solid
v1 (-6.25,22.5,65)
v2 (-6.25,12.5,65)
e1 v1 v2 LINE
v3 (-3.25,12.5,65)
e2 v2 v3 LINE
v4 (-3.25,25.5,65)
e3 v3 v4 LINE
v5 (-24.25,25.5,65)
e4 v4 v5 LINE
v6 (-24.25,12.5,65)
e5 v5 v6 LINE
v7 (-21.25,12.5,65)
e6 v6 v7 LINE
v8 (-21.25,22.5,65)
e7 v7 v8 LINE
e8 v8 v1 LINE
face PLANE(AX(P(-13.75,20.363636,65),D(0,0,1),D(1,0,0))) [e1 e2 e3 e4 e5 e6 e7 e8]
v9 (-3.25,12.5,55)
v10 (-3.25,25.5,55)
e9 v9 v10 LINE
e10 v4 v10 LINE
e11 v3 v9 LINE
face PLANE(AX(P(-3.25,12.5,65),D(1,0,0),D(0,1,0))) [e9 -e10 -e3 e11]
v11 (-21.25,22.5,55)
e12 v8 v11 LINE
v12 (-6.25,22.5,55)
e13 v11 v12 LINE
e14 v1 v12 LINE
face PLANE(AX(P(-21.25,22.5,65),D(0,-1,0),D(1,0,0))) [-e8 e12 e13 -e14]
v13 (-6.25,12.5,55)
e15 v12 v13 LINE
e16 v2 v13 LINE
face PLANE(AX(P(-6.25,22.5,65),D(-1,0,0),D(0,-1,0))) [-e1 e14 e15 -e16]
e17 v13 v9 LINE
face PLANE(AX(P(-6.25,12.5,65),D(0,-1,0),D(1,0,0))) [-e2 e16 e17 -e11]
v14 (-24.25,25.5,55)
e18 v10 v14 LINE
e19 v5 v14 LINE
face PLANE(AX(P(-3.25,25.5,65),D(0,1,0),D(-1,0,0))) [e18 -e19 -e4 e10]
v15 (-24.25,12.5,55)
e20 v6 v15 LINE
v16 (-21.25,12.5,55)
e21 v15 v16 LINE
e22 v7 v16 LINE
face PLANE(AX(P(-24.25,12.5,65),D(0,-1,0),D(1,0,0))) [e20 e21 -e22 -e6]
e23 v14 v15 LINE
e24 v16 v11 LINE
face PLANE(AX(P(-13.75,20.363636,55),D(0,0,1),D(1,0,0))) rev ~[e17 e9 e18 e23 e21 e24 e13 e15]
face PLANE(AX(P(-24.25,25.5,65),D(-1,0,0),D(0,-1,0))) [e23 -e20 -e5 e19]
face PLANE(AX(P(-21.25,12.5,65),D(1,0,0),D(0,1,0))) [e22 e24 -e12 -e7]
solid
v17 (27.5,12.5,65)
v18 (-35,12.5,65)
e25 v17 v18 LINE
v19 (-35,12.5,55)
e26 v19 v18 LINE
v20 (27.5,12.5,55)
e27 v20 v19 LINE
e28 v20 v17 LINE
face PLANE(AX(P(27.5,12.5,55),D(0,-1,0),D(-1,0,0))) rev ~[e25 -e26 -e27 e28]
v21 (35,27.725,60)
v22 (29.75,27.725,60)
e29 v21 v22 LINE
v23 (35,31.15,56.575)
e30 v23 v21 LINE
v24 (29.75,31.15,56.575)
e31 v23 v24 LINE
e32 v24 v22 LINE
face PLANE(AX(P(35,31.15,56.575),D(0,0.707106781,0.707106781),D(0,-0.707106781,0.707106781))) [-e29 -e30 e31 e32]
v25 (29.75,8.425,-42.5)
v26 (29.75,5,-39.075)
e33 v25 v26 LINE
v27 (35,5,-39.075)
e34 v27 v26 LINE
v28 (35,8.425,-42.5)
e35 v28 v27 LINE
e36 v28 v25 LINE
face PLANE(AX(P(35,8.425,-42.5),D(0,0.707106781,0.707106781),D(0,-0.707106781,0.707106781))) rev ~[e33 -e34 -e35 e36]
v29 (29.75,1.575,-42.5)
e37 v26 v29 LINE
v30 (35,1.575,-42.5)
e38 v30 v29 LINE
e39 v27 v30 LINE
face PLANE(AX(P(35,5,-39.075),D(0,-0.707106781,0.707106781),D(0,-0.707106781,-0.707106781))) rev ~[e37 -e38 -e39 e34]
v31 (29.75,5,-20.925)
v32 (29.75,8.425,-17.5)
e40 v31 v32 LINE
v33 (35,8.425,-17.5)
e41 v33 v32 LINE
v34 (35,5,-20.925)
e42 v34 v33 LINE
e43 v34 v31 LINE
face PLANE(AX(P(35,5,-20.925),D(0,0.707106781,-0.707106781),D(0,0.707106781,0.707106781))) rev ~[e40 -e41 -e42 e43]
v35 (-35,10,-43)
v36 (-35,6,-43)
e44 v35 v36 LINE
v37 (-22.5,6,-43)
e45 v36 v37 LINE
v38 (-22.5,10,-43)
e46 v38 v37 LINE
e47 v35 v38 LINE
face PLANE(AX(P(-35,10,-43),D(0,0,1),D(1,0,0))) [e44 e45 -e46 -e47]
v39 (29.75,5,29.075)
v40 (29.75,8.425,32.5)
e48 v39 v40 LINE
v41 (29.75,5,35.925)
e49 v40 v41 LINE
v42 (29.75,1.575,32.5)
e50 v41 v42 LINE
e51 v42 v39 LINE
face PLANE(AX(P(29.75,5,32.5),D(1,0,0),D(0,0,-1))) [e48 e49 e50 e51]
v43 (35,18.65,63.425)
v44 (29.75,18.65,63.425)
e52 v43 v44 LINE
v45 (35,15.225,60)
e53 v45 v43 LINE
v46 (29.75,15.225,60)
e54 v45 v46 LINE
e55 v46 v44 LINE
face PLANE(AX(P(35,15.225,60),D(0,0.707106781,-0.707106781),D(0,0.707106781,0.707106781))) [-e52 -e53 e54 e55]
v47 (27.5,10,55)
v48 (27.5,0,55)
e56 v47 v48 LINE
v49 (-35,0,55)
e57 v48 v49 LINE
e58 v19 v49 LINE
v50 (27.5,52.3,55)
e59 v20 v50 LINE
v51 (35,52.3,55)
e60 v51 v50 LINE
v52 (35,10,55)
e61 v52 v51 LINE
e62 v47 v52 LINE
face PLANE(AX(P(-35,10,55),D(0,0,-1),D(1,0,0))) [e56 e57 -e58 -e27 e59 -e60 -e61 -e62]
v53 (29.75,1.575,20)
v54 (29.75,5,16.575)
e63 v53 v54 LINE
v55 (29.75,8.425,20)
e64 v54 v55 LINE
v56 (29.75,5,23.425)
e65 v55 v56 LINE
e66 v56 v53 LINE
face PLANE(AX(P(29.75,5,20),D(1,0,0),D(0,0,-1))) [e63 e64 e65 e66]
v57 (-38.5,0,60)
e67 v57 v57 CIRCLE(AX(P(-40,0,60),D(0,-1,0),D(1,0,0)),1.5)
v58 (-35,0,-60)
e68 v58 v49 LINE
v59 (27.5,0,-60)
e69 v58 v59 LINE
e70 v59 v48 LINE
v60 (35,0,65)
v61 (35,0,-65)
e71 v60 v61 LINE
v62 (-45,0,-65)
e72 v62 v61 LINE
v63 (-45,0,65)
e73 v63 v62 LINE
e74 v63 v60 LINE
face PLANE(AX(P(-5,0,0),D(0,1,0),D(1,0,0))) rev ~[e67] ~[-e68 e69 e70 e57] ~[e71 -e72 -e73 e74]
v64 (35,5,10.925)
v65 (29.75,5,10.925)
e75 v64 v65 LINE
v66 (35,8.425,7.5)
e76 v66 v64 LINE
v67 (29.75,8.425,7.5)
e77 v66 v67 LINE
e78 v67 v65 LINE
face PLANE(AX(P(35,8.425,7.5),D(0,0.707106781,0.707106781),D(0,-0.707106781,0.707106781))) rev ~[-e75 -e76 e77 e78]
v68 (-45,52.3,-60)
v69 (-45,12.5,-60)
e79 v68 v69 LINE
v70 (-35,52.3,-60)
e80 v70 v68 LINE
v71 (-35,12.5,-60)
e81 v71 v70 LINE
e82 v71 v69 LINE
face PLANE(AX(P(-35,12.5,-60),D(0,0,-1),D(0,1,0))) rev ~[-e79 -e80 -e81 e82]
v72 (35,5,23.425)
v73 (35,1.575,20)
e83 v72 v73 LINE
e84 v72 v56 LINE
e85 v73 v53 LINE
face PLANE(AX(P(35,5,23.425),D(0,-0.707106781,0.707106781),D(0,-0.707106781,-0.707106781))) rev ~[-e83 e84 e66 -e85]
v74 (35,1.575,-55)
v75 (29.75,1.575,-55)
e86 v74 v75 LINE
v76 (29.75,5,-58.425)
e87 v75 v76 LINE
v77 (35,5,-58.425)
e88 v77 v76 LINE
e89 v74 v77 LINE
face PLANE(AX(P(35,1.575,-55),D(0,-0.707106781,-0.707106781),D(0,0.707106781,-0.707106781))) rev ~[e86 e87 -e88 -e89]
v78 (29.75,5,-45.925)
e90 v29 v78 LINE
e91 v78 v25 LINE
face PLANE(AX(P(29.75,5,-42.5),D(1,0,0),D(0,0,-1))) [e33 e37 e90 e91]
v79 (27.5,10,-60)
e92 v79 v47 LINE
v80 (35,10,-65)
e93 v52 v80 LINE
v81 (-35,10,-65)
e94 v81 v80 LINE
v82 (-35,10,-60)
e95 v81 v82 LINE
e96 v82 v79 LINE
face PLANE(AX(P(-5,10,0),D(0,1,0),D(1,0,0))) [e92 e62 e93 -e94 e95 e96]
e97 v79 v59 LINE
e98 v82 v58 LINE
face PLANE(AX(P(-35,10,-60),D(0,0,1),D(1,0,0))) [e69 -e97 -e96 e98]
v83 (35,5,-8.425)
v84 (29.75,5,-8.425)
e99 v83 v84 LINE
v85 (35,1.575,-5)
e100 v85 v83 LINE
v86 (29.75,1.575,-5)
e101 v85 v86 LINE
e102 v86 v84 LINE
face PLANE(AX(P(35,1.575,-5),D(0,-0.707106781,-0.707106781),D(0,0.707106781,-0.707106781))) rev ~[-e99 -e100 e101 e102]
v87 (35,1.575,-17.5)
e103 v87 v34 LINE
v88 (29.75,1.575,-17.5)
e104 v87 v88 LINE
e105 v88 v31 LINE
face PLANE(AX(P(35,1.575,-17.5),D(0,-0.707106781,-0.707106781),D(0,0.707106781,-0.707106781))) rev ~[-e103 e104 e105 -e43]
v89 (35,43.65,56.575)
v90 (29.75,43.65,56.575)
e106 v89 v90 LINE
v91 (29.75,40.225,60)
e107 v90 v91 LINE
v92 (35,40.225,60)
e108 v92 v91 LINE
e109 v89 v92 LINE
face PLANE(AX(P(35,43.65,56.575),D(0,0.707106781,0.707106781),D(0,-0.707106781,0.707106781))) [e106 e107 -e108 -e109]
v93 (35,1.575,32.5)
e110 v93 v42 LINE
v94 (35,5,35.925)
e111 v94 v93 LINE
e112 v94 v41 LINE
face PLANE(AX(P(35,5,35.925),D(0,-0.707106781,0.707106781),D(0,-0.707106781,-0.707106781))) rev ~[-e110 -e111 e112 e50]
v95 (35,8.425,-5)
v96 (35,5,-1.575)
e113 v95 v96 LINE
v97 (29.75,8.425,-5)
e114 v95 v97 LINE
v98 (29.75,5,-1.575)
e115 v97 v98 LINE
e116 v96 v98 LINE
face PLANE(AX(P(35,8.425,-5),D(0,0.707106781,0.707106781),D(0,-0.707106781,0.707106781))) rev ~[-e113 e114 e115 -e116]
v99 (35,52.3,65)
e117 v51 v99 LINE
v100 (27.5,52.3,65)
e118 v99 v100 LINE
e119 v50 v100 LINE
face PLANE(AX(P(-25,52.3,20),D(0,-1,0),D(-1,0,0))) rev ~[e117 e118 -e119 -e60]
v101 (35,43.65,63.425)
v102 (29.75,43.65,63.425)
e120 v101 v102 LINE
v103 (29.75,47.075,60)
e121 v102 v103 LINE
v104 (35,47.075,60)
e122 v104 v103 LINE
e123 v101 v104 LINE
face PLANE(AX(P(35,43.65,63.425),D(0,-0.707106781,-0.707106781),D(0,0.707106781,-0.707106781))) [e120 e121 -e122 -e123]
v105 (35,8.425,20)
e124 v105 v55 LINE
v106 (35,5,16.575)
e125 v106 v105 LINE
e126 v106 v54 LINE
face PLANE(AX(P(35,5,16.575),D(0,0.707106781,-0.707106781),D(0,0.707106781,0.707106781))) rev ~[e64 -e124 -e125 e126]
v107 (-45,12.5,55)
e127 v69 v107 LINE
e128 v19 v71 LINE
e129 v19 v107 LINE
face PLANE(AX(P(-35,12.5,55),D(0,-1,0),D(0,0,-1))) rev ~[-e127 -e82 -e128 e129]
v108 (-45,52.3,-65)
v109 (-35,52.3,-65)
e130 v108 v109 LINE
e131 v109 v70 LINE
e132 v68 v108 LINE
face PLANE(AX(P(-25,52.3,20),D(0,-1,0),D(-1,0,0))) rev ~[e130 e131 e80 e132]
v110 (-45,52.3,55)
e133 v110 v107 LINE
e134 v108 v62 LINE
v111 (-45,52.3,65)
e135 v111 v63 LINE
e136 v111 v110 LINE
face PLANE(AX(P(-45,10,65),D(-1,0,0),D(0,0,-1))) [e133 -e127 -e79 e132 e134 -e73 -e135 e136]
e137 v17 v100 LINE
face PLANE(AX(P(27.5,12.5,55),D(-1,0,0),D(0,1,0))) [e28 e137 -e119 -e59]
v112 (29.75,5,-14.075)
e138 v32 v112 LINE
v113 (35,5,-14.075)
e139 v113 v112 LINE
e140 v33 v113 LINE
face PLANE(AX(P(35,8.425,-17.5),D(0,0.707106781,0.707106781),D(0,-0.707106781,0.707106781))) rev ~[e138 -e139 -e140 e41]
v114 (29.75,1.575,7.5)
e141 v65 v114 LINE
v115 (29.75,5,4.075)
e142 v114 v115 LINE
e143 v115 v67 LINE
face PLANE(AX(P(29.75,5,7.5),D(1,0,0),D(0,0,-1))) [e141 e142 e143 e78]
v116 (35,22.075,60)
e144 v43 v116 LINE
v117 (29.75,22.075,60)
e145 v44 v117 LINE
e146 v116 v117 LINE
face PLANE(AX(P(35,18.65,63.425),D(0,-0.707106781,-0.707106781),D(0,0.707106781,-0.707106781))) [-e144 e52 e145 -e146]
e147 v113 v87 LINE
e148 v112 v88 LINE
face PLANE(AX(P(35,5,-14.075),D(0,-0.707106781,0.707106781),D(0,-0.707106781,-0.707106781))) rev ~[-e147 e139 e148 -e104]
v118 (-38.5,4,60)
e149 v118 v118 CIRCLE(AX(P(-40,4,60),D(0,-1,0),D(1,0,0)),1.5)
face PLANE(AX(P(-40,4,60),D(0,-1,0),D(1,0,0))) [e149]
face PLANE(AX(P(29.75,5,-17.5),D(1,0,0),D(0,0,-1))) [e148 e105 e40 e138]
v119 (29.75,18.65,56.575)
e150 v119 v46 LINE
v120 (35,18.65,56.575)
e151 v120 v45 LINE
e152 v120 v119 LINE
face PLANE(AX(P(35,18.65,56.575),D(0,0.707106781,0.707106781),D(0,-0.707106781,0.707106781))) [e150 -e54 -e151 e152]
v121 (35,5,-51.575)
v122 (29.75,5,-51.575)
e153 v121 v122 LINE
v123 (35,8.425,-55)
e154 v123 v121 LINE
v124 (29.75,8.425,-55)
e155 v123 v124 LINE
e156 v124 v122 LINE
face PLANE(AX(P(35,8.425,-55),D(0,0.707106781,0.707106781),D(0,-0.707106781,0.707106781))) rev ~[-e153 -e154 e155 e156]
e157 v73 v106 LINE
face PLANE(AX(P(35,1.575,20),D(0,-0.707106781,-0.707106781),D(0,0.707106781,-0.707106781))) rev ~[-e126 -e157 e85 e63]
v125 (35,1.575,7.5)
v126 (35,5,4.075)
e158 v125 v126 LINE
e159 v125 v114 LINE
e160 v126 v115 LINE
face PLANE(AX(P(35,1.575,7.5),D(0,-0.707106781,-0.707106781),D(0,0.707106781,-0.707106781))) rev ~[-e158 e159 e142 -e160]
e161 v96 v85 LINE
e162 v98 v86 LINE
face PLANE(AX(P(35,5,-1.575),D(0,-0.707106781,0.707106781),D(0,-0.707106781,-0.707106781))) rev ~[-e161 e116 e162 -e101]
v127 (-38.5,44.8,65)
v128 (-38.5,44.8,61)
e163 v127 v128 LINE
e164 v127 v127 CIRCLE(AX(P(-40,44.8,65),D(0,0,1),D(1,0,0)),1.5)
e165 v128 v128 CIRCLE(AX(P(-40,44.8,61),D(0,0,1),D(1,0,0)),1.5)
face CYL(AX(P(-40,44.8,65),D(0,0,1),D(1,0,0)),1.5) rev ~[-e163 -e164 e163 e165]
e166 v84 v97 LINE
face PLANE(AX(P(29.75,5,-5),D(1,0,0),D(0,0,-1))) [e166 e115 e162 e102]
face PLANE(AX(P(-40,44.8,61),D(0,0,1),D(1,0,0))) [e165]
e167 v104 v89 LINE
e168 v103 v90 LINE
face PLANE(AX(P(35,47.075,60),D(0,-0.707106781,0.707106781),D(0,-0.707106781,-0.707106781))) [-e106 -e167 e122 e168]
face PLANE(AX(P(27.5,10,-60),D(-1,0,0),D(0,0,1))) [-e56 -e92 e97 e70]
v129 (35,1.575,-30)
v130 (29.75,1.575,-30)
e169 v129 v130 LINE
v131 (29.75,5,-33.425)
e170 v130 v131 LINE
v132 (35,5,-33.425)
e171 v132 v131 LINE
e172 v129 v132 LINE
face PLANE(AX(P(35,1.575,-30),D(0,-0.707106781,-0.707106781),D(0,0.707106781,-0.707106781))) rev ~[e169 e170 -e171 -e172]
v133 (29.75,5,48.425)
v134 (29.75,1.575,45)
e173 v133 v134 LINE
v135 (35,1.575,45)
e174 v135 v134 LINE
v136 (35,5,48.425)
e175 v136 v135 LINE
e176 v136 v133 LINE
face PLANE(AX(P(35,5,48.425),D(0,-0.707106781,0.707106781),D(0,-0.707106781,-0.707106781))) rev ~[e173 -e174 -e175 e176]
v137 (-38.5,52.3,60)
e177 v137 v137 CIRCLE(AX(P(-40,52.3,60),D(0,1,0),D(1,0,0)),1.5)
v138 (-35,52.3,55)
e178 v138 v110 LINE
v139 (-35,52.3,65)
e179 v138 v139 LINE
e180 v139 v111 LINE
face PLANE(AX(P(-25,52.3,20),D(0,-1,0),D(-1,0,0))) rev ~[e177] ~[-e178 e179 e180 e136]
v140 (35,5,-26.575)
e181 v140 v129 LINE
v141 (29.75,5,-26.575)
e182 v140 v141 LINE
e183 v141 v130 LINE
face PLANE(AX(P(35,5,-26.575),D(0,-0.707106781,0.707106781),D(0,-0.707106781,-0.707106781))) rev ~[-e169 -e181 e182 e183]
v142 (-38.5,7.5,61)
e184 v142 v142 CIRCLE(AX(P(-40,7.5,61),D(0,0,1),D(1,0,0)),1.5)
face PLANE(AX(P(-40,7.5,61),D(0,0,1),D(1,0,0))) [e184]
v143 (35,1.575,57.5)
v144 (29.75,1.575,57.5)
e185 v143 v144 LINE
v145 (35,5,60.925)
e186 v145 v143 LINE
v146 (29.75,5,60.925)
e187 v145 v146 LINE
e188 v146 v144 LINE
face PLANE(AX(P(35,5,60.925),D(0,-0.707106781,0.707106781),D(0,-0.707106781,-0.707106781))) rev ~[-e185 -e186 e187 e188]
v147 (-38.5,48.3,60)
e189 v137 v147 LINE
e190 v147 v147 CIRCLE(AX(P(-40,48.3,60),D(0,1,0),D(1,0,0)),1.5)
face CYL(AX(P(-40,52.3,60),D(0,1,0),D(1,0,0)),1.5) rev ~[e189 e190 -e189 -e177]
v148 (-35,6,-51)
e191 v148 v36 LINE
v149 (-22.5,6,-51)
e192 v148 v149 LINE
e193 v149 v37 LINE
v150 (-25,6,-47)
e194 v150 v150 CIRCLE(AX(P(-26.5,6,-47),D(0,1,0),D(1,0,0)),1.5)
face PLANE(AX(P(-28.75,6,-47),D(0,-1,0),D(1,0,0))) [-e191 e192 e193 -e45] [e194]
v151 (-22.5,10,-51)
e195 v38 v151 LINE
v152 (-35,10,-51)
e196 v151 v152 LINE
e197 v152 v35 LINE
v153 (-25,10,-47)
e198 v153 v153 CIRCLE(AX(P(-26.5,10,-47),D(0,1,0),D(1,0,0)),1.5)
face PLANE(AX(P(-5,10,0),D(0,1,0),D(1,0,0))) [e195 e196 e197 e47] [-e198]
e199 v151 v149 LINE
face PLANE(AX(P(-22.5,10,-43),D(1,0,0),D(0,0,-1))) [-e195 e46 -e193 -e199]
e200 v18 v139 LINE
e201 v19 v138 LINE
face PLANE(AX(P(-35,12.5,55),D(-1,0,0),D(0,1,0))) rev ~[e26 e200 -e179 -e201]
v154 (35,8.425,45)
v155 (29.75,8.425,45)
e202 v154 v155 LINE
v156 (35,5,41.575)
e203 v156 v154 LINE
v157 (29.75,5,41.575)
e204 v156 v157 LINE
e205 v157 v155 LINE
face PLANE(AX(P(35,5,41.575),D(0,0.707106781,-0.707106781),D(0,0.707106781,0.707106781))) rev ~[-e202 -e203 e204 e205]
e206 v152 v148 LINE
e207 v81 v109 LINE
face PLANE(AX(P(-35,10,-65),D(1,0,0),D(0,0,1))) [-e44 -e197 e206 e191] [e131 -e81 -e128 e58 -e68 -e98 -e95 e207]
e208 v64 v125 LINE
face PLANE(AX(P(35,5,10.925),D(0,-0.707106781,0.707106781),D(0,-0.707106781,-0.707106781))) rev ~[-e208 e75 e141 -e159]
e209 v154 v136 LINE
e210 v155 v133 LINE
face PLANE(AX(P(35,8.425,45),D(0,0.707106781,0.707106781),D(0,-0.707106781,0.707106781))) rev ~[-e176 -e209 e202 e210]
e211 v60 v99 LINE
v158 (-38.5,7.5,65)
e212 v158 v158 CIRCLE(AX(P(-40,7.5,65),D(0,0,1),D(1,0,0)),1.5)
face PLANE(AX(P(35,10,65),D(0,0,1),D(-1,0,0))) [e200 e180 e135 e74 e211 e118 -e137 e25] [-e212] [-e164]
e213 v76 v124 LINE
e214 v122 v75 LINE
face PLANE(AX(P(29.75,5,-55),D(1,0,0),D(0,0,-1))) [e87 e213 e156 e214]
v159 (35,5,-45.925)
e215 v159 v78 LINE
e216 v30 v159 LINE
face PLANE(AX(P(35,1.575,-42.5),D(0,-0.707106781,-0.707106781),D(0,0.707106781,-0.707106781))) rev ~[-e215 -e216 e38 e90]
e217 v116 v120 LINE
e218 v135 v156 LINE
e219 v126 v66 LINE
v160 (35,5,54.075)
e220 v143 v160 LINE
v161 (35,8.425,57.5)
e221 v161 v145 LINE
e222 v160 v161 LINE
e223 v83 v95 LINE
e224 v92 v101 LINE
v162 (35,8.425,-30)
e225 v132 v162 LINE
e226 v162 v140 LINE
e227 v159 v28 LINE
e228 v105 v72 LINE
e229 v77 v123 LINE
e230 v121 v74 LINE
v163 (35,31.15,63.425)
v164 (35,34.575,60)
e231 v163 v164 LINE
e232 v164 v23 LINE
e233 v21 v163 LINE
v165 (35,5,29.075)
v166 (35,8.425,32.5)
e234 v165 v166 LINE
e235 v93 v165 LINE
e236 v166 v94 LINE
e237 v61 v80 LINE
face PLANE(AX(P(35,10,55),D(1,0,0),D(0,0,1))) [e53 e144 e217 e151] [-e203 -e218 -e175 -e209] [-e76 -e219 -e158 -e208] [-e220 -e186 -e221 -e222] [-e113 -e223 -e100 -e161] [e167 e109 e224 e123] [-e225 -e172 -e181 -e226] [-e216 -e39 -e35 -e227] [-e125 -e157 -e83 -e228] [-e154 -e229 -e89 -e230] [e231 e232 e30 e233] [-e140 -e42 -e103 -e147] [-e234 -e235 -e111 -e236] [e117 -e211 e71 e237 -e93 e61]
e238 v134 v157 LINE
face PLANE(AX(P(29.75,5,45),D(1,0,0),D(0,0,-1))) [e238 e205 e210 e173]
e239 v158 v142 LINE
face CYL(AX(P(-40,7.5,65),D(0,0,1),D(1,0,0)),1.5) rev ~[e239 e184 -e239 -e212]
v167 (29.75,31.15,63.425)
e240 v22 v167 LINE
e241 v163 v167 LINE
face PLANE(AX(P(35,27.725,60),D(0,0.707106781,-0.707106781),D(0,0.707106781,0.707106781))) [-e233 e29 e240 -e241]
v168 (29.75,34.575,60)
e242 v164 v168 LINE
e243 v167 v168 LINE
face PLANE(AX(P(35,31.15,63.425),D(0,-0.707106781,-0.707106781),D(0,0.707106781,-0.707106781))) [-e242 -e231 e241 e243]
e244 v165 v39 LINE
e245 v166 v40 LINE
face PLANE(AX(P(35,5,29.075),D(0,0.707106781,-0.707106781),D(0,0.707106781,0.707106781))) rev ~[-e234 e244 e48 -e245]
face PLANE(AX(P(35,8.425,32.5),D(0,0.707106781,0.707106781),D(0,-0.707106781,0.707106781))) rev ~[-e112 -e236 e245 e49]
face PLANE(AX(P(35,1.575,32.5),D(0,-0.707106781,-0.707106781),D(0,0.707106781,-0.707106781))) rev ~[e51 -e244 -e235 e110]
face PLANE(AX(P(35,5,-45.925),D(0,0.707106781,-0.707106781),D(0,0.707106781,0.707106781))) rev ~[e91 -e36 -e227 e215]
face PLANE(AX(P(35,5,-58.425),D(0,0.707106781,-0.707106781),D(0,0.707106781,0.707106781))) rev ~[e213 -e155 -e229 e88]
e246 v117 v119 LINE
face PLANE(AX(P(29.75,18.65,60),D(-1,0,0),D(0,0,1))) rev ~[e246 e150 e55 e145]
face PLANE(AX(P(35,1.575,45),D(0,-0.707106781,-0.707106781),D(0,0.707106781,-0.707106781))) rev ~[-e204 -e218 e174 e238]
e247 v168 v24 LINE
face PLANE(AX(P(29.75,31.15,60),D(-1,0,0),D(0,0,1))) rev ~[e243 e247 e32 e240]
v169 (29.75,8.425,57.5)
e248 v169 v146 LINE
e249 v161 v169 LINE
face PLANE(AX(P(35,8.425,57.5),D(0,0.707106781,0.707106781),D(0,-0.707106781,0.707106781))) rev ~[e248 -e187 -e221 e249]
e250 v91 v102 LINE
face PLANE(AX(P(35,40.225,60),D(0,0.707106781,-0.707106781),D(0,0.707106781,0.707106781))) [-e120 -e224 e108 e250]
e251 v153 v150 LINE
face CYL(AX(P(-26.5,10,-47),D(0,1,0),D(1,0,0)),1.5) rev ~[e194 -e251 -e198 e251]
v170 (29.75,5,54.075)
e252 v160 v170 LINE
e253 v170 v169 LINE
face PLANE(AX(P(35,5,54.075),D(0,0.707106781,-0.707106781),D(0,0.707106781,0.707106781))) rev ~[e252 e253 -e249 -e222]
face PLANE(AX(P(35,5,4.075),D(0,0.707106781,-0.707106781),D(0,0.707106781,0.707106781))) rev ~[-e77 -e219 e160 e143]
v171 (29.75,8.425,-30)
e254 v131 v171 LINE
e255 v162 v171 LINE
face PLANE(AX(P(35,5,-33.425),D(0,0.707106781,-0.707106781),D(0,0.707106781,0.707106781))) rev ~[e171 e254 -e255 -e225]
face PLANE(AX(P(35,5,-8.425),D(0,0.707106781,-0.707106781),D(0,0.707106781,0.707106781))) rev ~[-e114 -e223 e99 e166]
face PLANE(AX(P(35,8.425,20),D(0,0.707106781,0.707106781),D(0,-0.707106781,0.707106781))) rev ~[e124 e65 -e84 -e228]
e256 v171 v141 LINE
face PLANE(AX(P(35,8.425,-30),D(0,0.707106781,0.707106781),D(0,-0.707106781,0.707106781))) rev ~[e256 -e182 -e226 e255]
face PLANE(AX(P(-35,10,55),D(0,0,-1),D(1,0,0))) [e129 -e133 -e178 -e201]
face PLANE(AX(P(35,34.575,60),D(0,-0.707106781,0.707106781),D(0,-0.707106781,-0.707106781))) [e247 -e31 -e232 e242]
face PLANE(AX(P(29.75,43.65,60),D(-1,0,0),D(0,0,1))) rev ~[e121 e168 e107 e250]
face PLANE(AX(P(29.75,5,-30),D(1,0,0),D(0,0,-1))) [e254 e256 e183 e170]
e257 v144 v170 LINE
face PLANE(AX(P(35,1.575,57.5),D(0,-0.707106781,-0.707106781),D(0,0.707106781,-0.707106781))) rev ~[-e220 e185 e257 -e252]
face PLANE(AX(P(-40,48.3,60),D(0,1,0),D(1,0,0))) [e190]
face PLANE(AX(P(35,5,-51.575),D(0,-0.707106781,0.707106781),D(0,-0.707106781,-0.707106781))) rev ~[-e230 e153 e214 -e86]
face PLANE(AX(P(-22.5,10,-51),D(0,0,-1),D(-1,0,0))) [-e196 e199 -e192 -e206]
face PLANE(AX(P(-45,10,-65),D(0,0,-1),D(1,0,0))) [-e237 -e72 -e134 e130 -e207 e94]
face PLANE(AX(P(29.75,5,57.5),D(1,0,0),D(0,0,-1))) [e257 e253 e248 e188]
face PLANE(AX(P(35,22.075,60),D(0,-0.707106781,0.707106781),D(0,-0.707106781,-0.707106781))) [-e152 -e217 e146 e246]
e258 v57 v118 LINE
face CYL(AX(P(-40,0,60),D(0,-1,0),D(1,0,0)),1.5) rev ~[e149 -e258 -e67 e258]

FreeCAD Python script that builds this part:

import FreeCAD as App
import Part
import Sketcher
from FreeCAD import Vector

doc = App.newDocument("Part")
body = doc.addObject("PartDesign::Body", "Body")

# Sketch on XZ plane
sketch1 = body.newObject("Sketcher::SketchObject", "Sketch")
sketch1.AttachmentSupport = (doc.getObject("XZ_Plane"), [""])
sketch1.MapMode = "FlatFace"
sketch1.addGeometry([
    Part.LineSegment(Vector(-45, -65, 0), Vector(-45, 65, 0)),
    Part.LineSegment(Vector(-45, 65, 0), Vector(35, 65, 0)),
    Part.LineSegment(Vector(35, 65, 0), Vector(35, -65, 0)),
    Part.LineSegment(Vector(35, -65, 0), Vector(-45, -65, 0)),
], False)
sketch1.addConstraint([
    Sketcher.Constraint("Coincident", 0, 2, 1, 1),
    Sketcher.Constraint("Coincident", 1, 2, 2, 1),
    Sketcher.Constraint("Coincident", 2, 2, 3, 1),
    Sketcher.Constraint("Coincident", 3, 2, 0, 1),
    Sketcher.Constraint("Vertical", 0),
    Sketcher.Constraint("Horizontal", 1),
    Sketcher.Constraint("Vertical", 2),
    Sketcher.Constraint("Horizontal", 3),
    Sketcher.Constraint("DistanceX", 1, 1, 1, 2, 80.0),
    Sketcher.Constraint("DistanceY", 0, 1, 0, 2, 130.0),
    Sketcher.Constraint("DistanceX", 0, 2, -1, 1, 45.0),
    Sketcher.Constraint("DistanceY", -1, 1, 0, 2, 65.0),
])
pad1 = body.newObject("PartDesign::Pad", "Pad")
pad1.Profile = sketch1
pad1.Length = 10
pad1.Reversed = True

# Sketch on XZ plane
sketch2 = body.newObject("Sketcher::SketchObject", "Sketch001")
sketch2.AttachmentSupport = (doc.getObject("XZ_Plane"), [""])
sketch2.MapMode = "FlatFace"
sketch2.AttachmentOffset = App.Placement(Vector(0, 0, -10), App.Rotation())
sketch2.addGeometry([
    Part.LineSegment(Vector(-45, 65, 0), Vector(35, 65, 0)),  # 0
    Part.LineSegment(Vector(35, 65, 0), Vector(35, 55, 0)),  # 1
    Part.LineSegment(Vector(35, 55, 0), Vector(-35, 55, 0)),  # 2
    Part.LineSegment(Vector(-35, 55, 0), Vector(-35, -65, 0)),  # 3
    Part.LineSegment(Vector(-35, -65, 0), Vector(-45, -65, 0)),  # 4
    Part.LineSegment(Vector(-45, -65, 0), Vector(-45, 65, 0)),  # 5
], False)
sketch2.addConstraint([
    Sketcher.Constraint("Coincident", 0, 2, 1, 1),
    Sketcher.Constraint("Coincident", 1, 2, 2, 1),
    Sketcher.Constraint("Coincident", 2, 2, 3, 1),
    Sketcher.Constraint("Coincident", 3, 2, 4, 1),
    Sketcher.Constraint("Coincident", 4, 2, 5, 1),
    Sketcher.Constraint("Coincident", 5, 2, 0, 1),
    Sketcher.Constraint("Horizontal", 0),
    Sketcher.Constraint("Vertical", 1),
    Sketcher.Constraint("Horizontal", 2),
    Sketcher.Constraint("Vertical", 3),
    Sketcher.Constraint("Horizontal", 4),
    Sketcher.Constraint("Vertical", 5),
    Sketcher.Constraint("Symmetric", 0, 2, 3, 2, -1, 1),
    Sketcher.Constraint("Equal", 4, 1),
    Sketcher.Constraint("DistanceX", 0, 1, 0, 2, 80.0),
    Sketcher.Constraint("DistanceX", 2, 2, 2, 1, 70.0),
    Sketcher.Constraint("DistanceY", 3, 2, 3, 1, 120.0),
])
pad2 = body.newObject("PartDesign::Pad", "Pad001")
pad2.Profile = sketch2
pad2.Length = 42.3
pad2.Reversed = True

# Sketch on YZ plane
sketch3 = body.newObject("Sketcher::SketchObject", "Sketch002")
sketch3.AttachmentSupport = (doc.getObject("YZ_Plane"), [""])
sketch3.MapMode = "FlatFace"
sketch3.AttachmentOffset = App.Placement(Vector(0, 0, 35), App.Rotation())
sketch3.addGeometry([
    Part.LineSegment(Vector(5, -20.9, 0), Vector(8.4, -17.5, 0)),  # 0
    Part.LineSegment(Vector(8.4, -17.5, 0), Vector(5, -14.1, 0)),  # 1
    Part.LineSegment(Vector(5, -14.1, 0), Vector(1.6, -17.5, 0)),  # 2
    Part.LineSegment(Vector(1.6, -17.5, 0), Vector(5, -20.9, 0)),  # 3
    Part.LineSegment(Vector(5, -33.4, 0), Vector(8.4, -30, 0)),  # 4
    Part.LineSegment(Vector(8.4, -30, 0), Vector(5, -26.6, 0)),  # 5
    Part.LineSegment(Vector(5, -26.6, 0), Vector(1.6, -30, 0)),  # 6
    Part.LineSegment(Vector(1.6, -30, 0), Vector(5, -33.4, 0)),  # 7
    Part.LineSegment(Vector(8.4, -5, 0), Vector(5, -1.6, 0)),  # 8
    Part.LineSegment(Vector(5, -1.6, 0), Vector(1.6, -5, 0)),  # 9
    Part.LineSegment(Vector(1.6, -5, 0), Vector(5, -8.4, 0)),  # 10
    Part.LineSegment(Vector(5, -8.4, 0), Vector(8.4, -5, 0)),  # 11
    Part.LineSegment(Vector(5, 4.1, 0), Vector(8.4, 7.5, 0)),  # 12
    Part.LineSegment(Vector(8.4, 7.5, 0), Vector(5, 10.9, 0)),  # 13
    Part.LineSegment(Vector(5, 10.9, 0), Vector(1.6, 7.5, 0)),  # 14
    Part.LineSegment(Vector(1.6, 7.5, 0), Vector(5, 4.1, 0)),  # 15
    Part.LineSegment(Vector(5, 16.6, 0), Vector(8.4, 20, 0)),  # 16
    Part.LineSegment(Vector(8.4, 20, 0), Vector(5, 23.4, 0)),  # 17
    Part.LineSegment(Vector(5, 23.4, 0), Vector(1.6, 20, 0)),  # 18
    Part.LineSegment(Vector(1.6, 20, 0), Vector(5, 16.6, 0)),  # 19
    Part.LineSegment(Vector(5, 29.1, 0), Vector(8.4, 32.5, 0)),  # 20
    Part.LineSegment(Vector(8.4, 32.5, 0), Vector(5, 35.9, 0)),  # 21
    Part.LineSegment(Vector(5, 35.9, 0), Vector(1.6, 32.5, 0)),  # 22
    Part.LineSegment(Vector(1.6, 32.5, 0), Vector(5, 29.1, 0)),  # 23
    Part.LineSegment(Vector(5, 41.6, 0), Vector(8.4, 45, 0)),  # 24
    Part.LineSegment(Vector(8.4, 45, 0), Vector(5, 48.4, 0)),  # 25
    Part.LineSegment(Vector(5, 48.4, 0), Vector(1.6, 45, 0)),  # 26
    Part.LineSegment(Vector(1.6, 45, 0), Vector(5, 41.6, 0)),  # 27
    Part.LineSegment(Vector(5, 54.1, 0), Vector(8.4, 57.5, 0)),  # 28
    Part.LineSegment(Vector(8.4, 57.5, 0), Vector(5, 60.9, 0)),  # 29
    Part.LineSegment(Vector(5, 60.9, 0), Vector(1.6, 57.5, 0)),  # 30
    Part.LineSegment(Vector(1.6, 57.5, 0), Vector(5, 54.1, 0)),  # 31
    Part.LineSegment(Vector(34.6, 60, 0), Vector(31.1, 63.4, 0)),  # 32
    Part.LineSegment(Vector(31.1, 63.4, 0), Vector(27.7, 60, 0)),  # 33
    Part.LineSegment(Vector(27.7, 60, 0), Vector(31.1, 56.6, 0)),  # 34
    Part.LineSegment(Vector(31.1, 56.6, 0), Vector(34.6, 60, 0)),  # 35
    Part.LineSegment(Vector(43.6, 63.4, 0), Vector(40.2, 60, 0)),  # 36
    Part.LineSegment(Vector(40.2, 60, 0), Vector(43.6, 56.6, 0)),  # 37
    Part.LineSegment(Vector(43.6, 56.6, 0), Vector(47.1, 60, 0)),  # 38
    Part.LineSegment(Vector(47.1, 60, 0), Vector(43.6, 63.4, 0)),  # 39
    Part.LineSegment(Vector(18.6, 63.4, 0), Vector(15.2, 60, 0)),  # 40
    Part.LineSegment(Vector(15.2, 60, 0), Vector(18.6, 56.6, 0)),  # 41
    Part.LineSegment(Vector(18.6, 56.6, 0), Vector(22.1, 60, 0)),  # 42
    Part.LineSegment(Vector(22.1, 60, 0), Vector(18.6, 63.4, 0)),  # 43
    Part.LineSegment(Vector(5, -45.9, 0), Vector(8.4, -42.5, 0)),  # 44
    Part.LineSegment(Vector(8.4, -42.5, 0), Vector(5, -39.1, 0)),  # 45
    Part.LineSegment(Vector(5, -39.1, 0), Vector(1.6, -42.5, 0)),  # 46
    Part.LineSegment(Vector(1.6, -42.5, 0), Vector(5, -45.9, 0)),  # 47
    Part.LineSegment(Vector(5, -58.4, 0), Vector(8.4, -55, 0)),  # 48
    Part.LineSegment(Vector(8.4, -55, 0), Vector(5, -51.6, 0)),  # 49
    Part.LineSegment(Vector(5, -51.6, 0), Vector(1.6, -55, 0)),  # 50
    Part.LineSegment(Vector(1.6, -55, 0), Vector(5, -58.4, 0)),  # 51
], False)
sketch3.addConstraint([
    Sketcher.Constraint("Coincident", 0, 2, 1, 1),
    Sketcher.Constraint("Coincident", 1, 2, 2, 1),
    Sketcher.Constraint("Coincident", 2, 2, 3, 1),
    Sketcher.Constraint("Coincident", 3, 2, 0, 1),
    Sketcher.Constraint("Coincident", 4, 2, 5, 1),
    Sketcher.Constraint("Coincident", 5, 2, 6, 1),
    Sketcher.Constraint("Coincident", 6, 2, 7, 1),
    Sketcher.Constraint("Coincident", 7, 2, 4, 1),
    Sketcher.Constraint("Coincident", 8, 2, 9, 1),
    Sketcher.Constraint("Coincident", 9, 2, 10, 1),
    Sketcher.Constraint("Coincident", 10, 2, 11, 1),
    Sketcher.Constraint("Coincident", 11, 2, 8, 1),
    Sketcher.Constraint("Coincident", 12, 2, 13, 1),
    Sketcher.Constraint("Coincident", 13, 2, 14, 1),
    Sketcher.Constraint("Coincident", 14, 2, 15, 1),
    Sketcher.Constraint("Coincident", 15, 2, 12, 1),
    Sketcher.Constraint("Coincident", 16, 2, 17, 1),
    Sketcher.Constraint("Coincident", 17, 2, 18, 1),
    Sketcher.Constraint("Coincident", 18, 2, 19, 1),
    Sketcher.Constraint("Coincident", 19, 2, 16, 1),
    Sketcher.Constraint("Coincident", 20, 2, 21, 1),
    Sketcher.Constraint("Coincident", 21, 2, 22, 1),
    Sketcher.Constraint("Coincident", 22, 2, 23, 1),
    Sketcher.Constraint("Coincident", 23, 2, 20, 1),
    Sketcher.Constraint("Coincident", 24, 2, 25, 1),
    Sketcher.Constraint("Coincident", 25, 2, 26, 1),
    Sketcher.Constraint("Coincident", 26, 2, 27, 1),
    Sketcher.Constraint("Coincident", 27, 2, 24, 1),
    Sketcher.Constraint("Coincident", 28, 2, 29, 1),
    Sketcher.Constraint("Coincident", 29, 2, 30, 1),
    Sketcher.Constraint("Coincident", 30, 2, 31, 1),
    Sketcher.Constraint("Coincident", 31, 2, 28, 1),
    Sketcher.Constraint("Coincident", 32, 2, 33, 1),
    Sketcher.Constraint("Coincident", 33, 2, 34, 1),
    Sketcher.Constraint("Coincident", 34, 2, 35, 1),
    Sketcher.Constraint("Coincident", 35, 2, 32, 1),
    Sketcher.Constraint("Coincident", 36, 2, 37, 1),
    Sketcher.Constraint("Coincident", 37, 2, 38, 1),
    Sketcher.Constraint("Coincident", 38, 2, 39, 1),
    Sketcher.Constraint("Coincident", 39, 2, 36, 1),
    Sketcher.Constraint("Coincident", 40, 2, 41, 1),
    Sketcher.Constraint("Coincident", 41, 2, 42, 1),
    Sketcher.Constraint("Coincident", 42, 2, 43, 1),
    Sketcher.Constraint("Coincident", 43, 2, 40, 1),
    Sketcher.Constraint("Coincident", 44, 2, 45, 1),
    Sketcher.Constraint("Coincident", 45, 2, 46, 1),
    Sketcher.Constraint("Coincident", 46, 2, 47, 1),
    Sketcher.Constraint("Coincident", 47, 2, 44, 1),
    Sketcher.Constraint("Coincident", 48, 2, 49, 1),
    Sketcher.Constraint("Coincident", 49, 2, 50, 1),
    Sketcher.Constraint("Coincident", 50, 2, 51, 1),
    Sketcher.Constraint("Coincident", 51, 2, 48, 1),
    Sketcher.Constraint("Perpendicular", 0, 1),
    Sketcher.Constraint("Perpendicular", 1, 2),
    Sketcher.Constraint("Perpendicular", 2, 3),
    Sketcher.Constraint("Perpendicular", 3, 4),
    Sketcher.Constraint("Perpendicular", 4, 5),
    Sketcher.Constraint("Perpendicular", 5, 6),
    Sketcher.Constraint("Perpendicular", 6, 7),
    Sketcher.Constraint("Parallel", 7, 8),
    Sketcher.Constraint("Perpendicular", 8, 9),
    Sketcher.Constraint("Perpendicular", 9, 10),
    Sketcher.Constraint("Perpendicular", 10, 11),
    Sketcher.Constraint("Parallel", 11, 12),
    Sketcher.Constraint("Perpendicular", 12, 13),
    Sketcher.Constraint("Perpendicular", 13, 14),
    Sketcher.Constraint("Perpendicular", 14, 15),
    Sketcher.Constraint("Perpendicular", 15, 16),
    Sketcher.Constraint("Perpendicular", 16, 17),
    Sketcher.Constraint("Perpendicular", 17, 18),
    Sketcher.Constraint("Perpendicular", 18, 19),
    Sketcher.Constraint("Perpendicular", 19, 20),
    Sketcher.Constraint("Perpendicular", 20, 21),
    Sketcher.Constraint("Perpendicular", 21, 22),
    Sketcher.Constraint("Perpendicular", 22, 23),
    Sketcher.Constraint("Perpendicular", 23, 24),
    Sketcher.Constraint("Perpendicular", 24, 25),
    Sketcher.Constraint("Perpendicular", 25, 26),
    Sketcher.Constraint("Perpendicular", 26, 27),
    Sketcher.Constraint("Perpendicular", 27, 28),
    Sketcher.Constraint("Perpendicular", 28, 29),
    Sketcher.Constraint("Perpendicular", 29, 30),
    Sketcher.Constraint("Perpendicular", 30, 31),
    Sketcher.Constraint("Parallel", 31, 32),
    Sketcher.Constraint("Perpendicular", 32, 33),
    Sketcher.Constraint("Perpendicular", 33, 34),
    Sketcher.Constraint("Perpendicular", 34, 35),
    Sketcher.Constraint("Parallel", 35, 36),
    Sketcher.Constraint("Perpendicular", 36, 37),
    Sketcher.Constraint("Perpendicular", 37, 38),
    Sketcher.Constraint("Perpendicular", 38, 39),
    Sketcher.Constraint("Perpendicular", 39, 40),
    Sketcher.Constraint("Perpendicular", 40, 41),
    Sketcher.Constraint("Perpendicular", 41, 42),
    Sketcher.Constraint("Perpendicular", 42, 43),
    Sketcher.Constraint("Perpendicular", 43, 44),
    Sketcher.Constraint("Perpendicular", 44, 45),
    Sketcher.Constraint("Perpendicular", 45, 46),
    Sketcher.Constraint("Perpendicular", 46, 47),
    Sketcher.Constraint("Perpendicular", 47, 48),
    Sketcher.Constraint("Perpendicular", 48, 49),
    Sketcher.Constraint("Perpendicular", 49, 50),
    Sketcher.Constraint("Perpendicular", 50, 51),
    Sketcher.Constraint("Horizontal", 0, 2, 2, 2),
    Sketcher.Constraint("Horizontal", 4, 2, 6, 2),
    Sketcher.Constraint("Horizontal", 9, 2, 11, 2),
    Sketcher.Constraint("Horizontal", 12, 2, 14, 2),
    Sketcher.Constraint("Horizontal", 16, 2, 18, 2),
    Sketcher.Constraint("Horizontal", 20, 2, 22, 2),
    Sketcher.Constraint("Horizontal", 24, 2, 26, 2),
    Sketcher.Constraint("Horizontal", 28, 2, 30, 2),
    Sketcher.Constraint("Horizontal", 33, 2, 35, 2),
    Sketcher.Constraint("Horizontal", 35, 2, 36, 2),
    Sketcher.Constraint("Horizontal", 34, 2, 37, 2),
    Sketcher.Constraint("Horizontal", 36, 2, 38, 2),
    Sketcher.Constraint("Horizontal", 38, 2, 40, 2),
    Sketcher.Constraint("Horizontal", 37, 2, 41, 2),
    Sketcher.Constraint("Horizontal", 40, 2, 42, 2),
    Sketcher.Constraint("Horizontal", 44, 2, 46, 2),
    Sketcher.Constraint("Horizontal", 48, 2, 50, 2),
    Sketcher.Constraint("Vertical", 1, 2, 3, 2),
    Sketcher.Constraint("Vertical", 0, 2, 4, 2),
    Sketcher.Constraint("Vertical", 3, 2, 5, 2),
    Sketcher.Constraint("Vertical", 7, 2, 8, 2),
    Sketcher.Constraint("Vertical", 6, 2, 9, 2),
    Sketcher.Constraint("Vertical", 11, 2, 12, 2),
    Sketcher.Constraint("Vertical", 10, 2, 13, 2),
    Sketcher.Constraint("Vertical", 12, 2, 16, 2),
    Sketcher.Constraint("Vertical", 15, 2, 17, 2),
    Sketcher.Constraint("Vertical", 16, 2, 20, 2),
    Sketcher.Constraint("Vertical", 19, 2, 21, 2),
    Sketcher.Constraint("Vertical", 20, 2, 24, 2),
    Sketcher.Constraint("Vertical", 23, 2, 25, 2),
    Sketcher.Constraint("Vertical", 24, 2, 28, 2),
    Sketcher.Constraint("Vertical", 27, 2, 29, 2),
    Sketcher.Constraint("Vertical", 28, 2, 44, 2),
    Sketcher.Constraint("Vertical", 31, 2, 45, 2),
    Sketcher.Constraint("Vertical", 44, 2, 48, 2),
    Sketcher.Constraint("Vertical", 47, 2, 49, 2),
    Sketcher.Constraint("Equal", 31, 32),
    Sketcher.Constraint("DistanceX", -1, 1, 1, 2, 5.0),
    Sketcher.Constraint("DistanceY", 4, 2, -1, 1, 30.0),
    Sketcher.Constraint("DistanceY", 9, 2, -1, 1, 5.0),
    Sketcher.Constraint("DistanceY", -1, 1, 16, 2, 20.0),
    Sketcher.Constraint("DistanceY", -1, 1, 24, 2, 45.0),
    Sketcher.Constraint("DistanceY", -1, 1, 33, 2, 60.0),
    Sketcher.Constraint("DistanceY", 48, 2, -1, 1, 55.0),
    Sketcher.Constraint("DistanceY", 0, 2, -1, 1, 17.5),
    Sketcher.Constraint("DistanceY", -1, 1, 12, 2, 7.5),
    Sketcher.Constraint("DistanceY", -1, 1, 20, 2, 32.5),
    Sketcher.Constraint("DistanceY", -1, 1, 28, 2, 57.5),
    Sketcher.Constraint("DistanceY", 44, 2, -1, 1, 42.5),
    Sketcher.Constraint("DistanceX", 28, 2, 33, 2, 19.3),
    Sketcher.Constraint("DistanceX", 33, 2, 36, 2, 12.5),
    Sketcher.Constraint("DistanceX", 28, 2, 40, 2, 6.8),
    Sketcher.Constraint("DistanceX", -1, 1, 32, 2, 31.15),
])
pocket1 = body.newObject("PartDesign::Pocket", "Pocket")
pocket1.Profile = sketch3
pocket1.Length = 5.25

# Sketch on XZ plane
sketch4 = body.newObject("Sketcher::SketchObject", "Sketch003")
sketch4.AttachmentSupport = (doc.getObject("XZ_Plane"), [""])
sketch4.MapMode = "FlatFace"
sketch4.AttachmentOffset = App.Placement(Vector(0, 0, -10), App.Rotation())
sketch4.addGeometry(Part.Circle(Vector(-26.5, -47, 0), Vector(0, 0, 1), 1.5), False)
sketch4.addConstraint([
    Sketcher.Constraint("Diameter", 0, 3.0),
    Sketcher.Constraint("DistanceY", 0, 3, -1, 1, 47.0),
    Sketcher.Constraint("DistanceX", 0, 3, -1, 1, 26.5),
])
pocket2 = body.newObject("PartDesign::Pocket", "Pocket001")
pocket2.Profile = sketch4
pocket2.Type = "ThroughAll"
pocket2.Reversed = True

# Sketch on XZ plane
sketch5 = body.newObject("Sketcher::SketchObject", "Sketch004")
sketch5.AttachmentSupport = (doc.getObject("XZ_Plane"), [""])
sketch5.MapMode = "FlatFace"
sketch5.AttachmentOffset = App.Placement(Vector(0, 0, -10), App.Rotation())
sketch5.addGeometry([
    Part.LineSegment(Vector(-35, -43, 0), Vector(-35, 55, 0)),  # 0
    Part.LineSegment(Vector(-35, 55, 0), Vector(28, 55, 0)),  # 1
    Part.LineSegment(Vector(28, 55, 0), Vector(28, -60, 0)),  # 2
    Part.LineSegment(Vector(28, -60, 0), Vector(-35, -60, 0)),  # 3
    Part.LineSegment(Vector(-35, -60, 0), Vector(-35, -51, 0)),  # 4
    Part.LineSegment(Vector(-35, -51, 0), Vector(-22, -51, 0)),  # 5
    Part.LineSegment(Vector(-22, -51, 0), Vector(-22, -43, 0)),  # 6
    Part.LineSegment(Vector(-22, -43, 0), Vector(-35, -43, 0)),  # 7
], False)
sketch5.addConstraint([
    Sketcher.Constraint("Coincident", 0, 2, 1, 1),
    Sketcher.Constraint("Coincident", 1, 2, 2, 1),
    Sketcher.Constraint("Coincident", 2, 2, 3, 1),
    Sketcher.Constraint("Coincident", 3, 2, 4, 1),
    Sketcher.Constraint("Coincident", 4, 2, 5, 1),
    Sketcher.Constraint("Coincident", 5, 2, 6, 1),
    Sketcher.Constraint("Coincident", 6, 2, 7, 1),
    Sketcher.Constraint("Coincident", 7, 2, 0, 1),
    Sketcher.Constraint("Vertical", 0),
    Sketcher.Constraint("Horizontal", 1),
    Sketcher.Constraint("Vertical", 2),
    Sketcher.Constraint("Horizontal", 3),
    Sketcher.Constraint("Vertical", 4),
    Sketcher.Constraint("Horizontal", 5),
    Sketcher.Constraint("Vertical", 6),
    Sketcher.Constraint("Horizontal", 7),
    Sketcher.Constraint("Vertical", 0, 2, 3, 2),
    Sketcher.Constraint("DistanceY", 0, 1, 0, 2, 98.0),
    Sketcher.Constraint("DistanceY", 2, 2, 2, 1, 115.0),
    Sketcher.Constraint("DistanceY", 4, 1, 4, 2, 9.0),
    Sketcher.Constraint("DistanceX", 1, 1, 1, 2, 62.5),
    Sketcher.Constraint("DistanceX", 5, 1, 5, 2, 12.5),
    Sketcher.Constraint("DistanceX", 0, 2, -1, 1, 35.0),
    Sketcher.Constraint("DistanceY", -1, 1, 0, 2, 55.0),
])
pocket3 = body.newObject("PartDesign::Pocket", "Pocket002")
pocket3.Profile = sketch5
pocket3.Type = "ThroughAll"
pocket3.Reversed = True

# Sketch on YZ plane
sketch6 = body.newObject("Sketcher::SketchObject", "Sketch005")
sketch6.AttachmentSupport = (doc.getObject("YZ_Plane"), [""])
sketch6.MapMode = "FlatFace"
sketch6.AttachmentOffset = App.Placement(Vector(0, 0, -35), App.Rotation())
sketch6.addGeometry([
    Part.LineSegment(Vector(52, 55, 0), Vector(12, 55, 0)),
    Part.LineSegment(Vector(12, 55, 0), Vector(12, -60, 0)),
    Part.LineSegment(Vector(12, -60, 0), Vector(52, -60, 0)),
    Part.LineSegment(Vector(52, -60, 0), Vector(52, 55, 0)),
], False)
sketch6.addConstraint([
    Sketcher.Constraint("Coincident", 0, 2, 1, 1),
    Sketcher.Constraint("Coincident", 1, 2, 2, 1),
    Sketcher.Constraint("Coincident", 2, 2, 3, 1),
    Sketcher.Constraint("Coincident", 3, 2, 0, 1),
    Sketcher.Constraint("Horizontal", 0),
    Sketcher.Constraint("Vertical", 1),
    Sketcher.Constraint("Horizontal", 2),
    Sketcher.Constraint("Vertical", 3),
    Sketcher.Constraint("DistanceY", 1, 2, 1, 1, 115.0),
    Sketcher.Constraint("DistanceX", 0, 2, 0, 1, 39.8),
    Sketcher.Constraint("DistanceY", -1, 1, 0, 2, 55.0),
    Sketcher.Constraint("DistanceX", -1, 1, 0, 2, 12.5),
])
pocket4 = body.newObject("PartDesign::Pocket", "Pocket003")
pocket4.Profile = sketch6
pocket4.Type = "ThroughAll"

# Sketch on XY plane
sketch7 = body.newObject("Sketcher::SketchObject", "Sketch006")
sketch7.AttachmentSupport = (doc.getObject("XY_Plane"), [""])
sketch7.MapMode = "FlatFace"
sketch7.AttachmentOffset = App.Placement(Vector(0, 0, 55), App.Rotation())
sketch7.addGeometry([
    Part.LineSegment(Vector(28, 52, 0), Vector(28, 12, 0)),
    Part.LineSegment(Vector(28, 12, 0), Vector(-35, 12, 0)),
    Part.LineSegment(Vector(-35, 12, 0), Vector(-35, 52, 0)),
    Part.LineSegment(Vector(-35, 52, 0), Vector(28, 52, 0)),
], False)
sketch7.addConstraint([
    Sketcher.Constraint("Coincident", 0, 2, 1, 1),
    Sketcher.Constraint("Coincident", 1, 2, 2, 1),
    Sketcher.Constraint("Coincident", 2, 2, 3, 1),
    Sketcher.Constraint("Coincident", 3, 2, 0, 1),
    Sketcher.Constraint("Vertical", 0),
    Sketcher.Constraint("Horizontal", 1),
    Sketcher.Constraint("Vertical", 2),
    Sketcher.Constraint("Horizontal", 3),
    Sketcher.Constraint("DistanceX", 1, 2, 1, 1, 62.5),
    Sketcher.Constraint("DistanceY", 0, 2, 0, 1, 39.8),
    Sketcher.Constraint("DistanceX", 1, 2, -1, 1, 35.0),
    Sketcher.Constraint("DistanceY", -1, 1, 0, 2, 12.5),
])
pocket5 = body.newObject("PartDesign::Pocket", "Pocket004")
pocket5.Profile = sketch7
pocket5.Length = 10
pocket5.Reversed = True

# Sketch on XZ plane
sketch8 = body.newObject("Sketcher::SketchObject", "Sketch007")
sketch8.AttachmentSupport = (doc.getObject("XZ_Plane"), [""])
sketch8.MapMode = "FlatFace"
sketch8.AttachmentOffset = App.Placement(Vector(0, 0, -52.3), App.Rotation())
sketch8.addGeometry(Part.Circle(Vector(-40, 60, 0), Vector(0, 0, 1), 1.5), False)
sketch8.addConstraint([
    Sketcher.Constraint("Diameter", 0, 3.0),
    Sketcher.Constraint("DistanceX", 0, 3, -1, 1, 40.0),
    Sketcher.Constraint("DistanceY", -1, 1, 0, 3, 60.0),
])
pocket6 = body.newObject("PartDesign::Pocket", "Pocket005")
pocket6.Profile = sketch8
pocket6.Length = 4
pocket6.Reversed = True

# Sketch on XZ plane
sketch9 = body.newObject("Sketcher::SketchObject", "Sketch008")
sketch9.AttachmentSupport = (doc.getObject("XZ_Plane"), [""])
sketch9.MapMode = "FlatFace"
sketch9.addGeometry(Part.Circle(Vector(-40, 60, 0), Vector(0, 0, 1), 1.5), False)
sketch9.addConstraint([
    Sketcher.Constraint("Diameter", 0, 3.0),
    Sketcher.Constraint("DistanceX", 0, 3, -1, 1, 40.0),
    Sketcher.Constraint("DistanceY", -1, 1, 0, 3, 60.0),
])
pocket7 = body.newObject("PartDesign::Pocket", "Pocket006")
pocket7.Profile = sketch9
pocket7.Length = 4

# Sketch on XZ plane
sketch10 = body.newObject("Sketcher::SketchObject", "Sketch009")
sketch10.AttachmentSupport = (doc.getObject("XZ_Plane"), [""])
sketch10.MapMode = "FlatFace"
sketch10.addGeometry([
    Part.LineSegment(Vector(-35, -43, 0), Vector(-35, -51, 0)),
    Part.LineSegment(Vector(-35, -51, 0), Vector(-22, -51, 0)),
    Part.LineSegment(Vector(-22, -51, 0), Vector(-22, -43, 0)),
    Part.LineSegment(Vector(-22, -43, 0), Vector(-35, -43, 0)),
], False)
sketch10.addConstraint([
    Sketcher.Constraint("Coincident", 0, 2, 1, 1),
    Sketcher.Constraint("Coincident", 1, 2, 2, 1),
    Sketcher.Constraint("Coincident", 2, 2, 3, 1),
    Sketcher.Constraint("Coincident", 3, 2, 0, 1),
    Sketcher.Constraint("Vertical", 0),
    Sketcher.Constraint("Horizontal", 1),
    Sketcher.Constraint("Vertical", 2),
    Sketcher.Constraint("Horizontal", 3),
    Sketcher.Constraint("DistanceY", 0, 2, 0, 1, 8.0),
    Sketcher.Constraint("DistanceX", 1, 1, 1, 2, 12.5),
    Sketcher.Constraint("DistanceX", 0, 2, -1, 1, 35.0),
    Sketcher.Constraint("DistanceY", 0, 2, -1, 1, 51.0),
])
pocket8 = body.newObject("PartDesign::Pocket", "Pocket007")
pocket8.Profile = sketch10
pocket8.Length = 6

# Sketch on XY plane
sketch11 = body.newObject("Sketcher::SketchObject", "Sketch010")
sketch11.AttachmentSupport = (doc.getObject("XY_Plane"), [""])
sketch11.MapMode = "FlatFace"
sketch11.AttachmentOffset = App.Placement(Vector(0, 0, 65), App.Rotation())
sketch11.addGeometry([
    Part.Circle(Vector(-40, 44.8, 0), Vector(0, 0, 1), 1.5),
    Part.Circle(Vector(-40, 7.5, 0), Vector(0, 0, 1), 1.5),
], False)
sketch11.addConstraint([
    Sketcher.Constraint("Equal", 0, 1),
    Sketcher.Constraint("Vertical", 0, 3, 1, 3),
    Sketcher.Constraint("Diameter", 0, 3.0),
    Sketcher.Constraint("DistanceX", 0, 3, -1, 1, 40.0),
    Sketcher.Constraint("DistanceY", -1, 1, 0, 3, 44.8),
    Sketcher.Constraint("DistanceY", -1, 1, 1, 3, 7.5),
])
pocket9 = body.newObject("PartDesign::Pocket", "Pocket008")
pocket9.Profile = sketch11
pocket9.Length = 4
body2 = doc.addObject("PartDesign::Body", "Body001")

# Sketch on XY plane
sketch12 = body2.newObject("Sketcher::SketchObject", "Sketch011")
sketch12.AttachmentSupport = (doc.getObject("XY_Plane001"), [""])
sketch12.MapMode = "FlatFace"
sketch12.AttachmentOffset = App.Placement(Vector(0, 0, 65), App.Rotation())
sketch12.addGeometry([
    Part.LineSegment(Vector(-24.2, 12.5, 0), Vector(-21.2, 12.5, 0)),  # 0
    Part.LineSegment(Vector(-21.2, 12.5, 0), Vector(-21.2, 22.5, 0)),  # 1
    Part.LineSegment(Vector(-21.2, 22.5, 0), Vector(-6.2, 22.5, 0)),  # 2
    Part.LineSegment(Vector(-6.2, 22.5, 0), Vector(-6.2, 12.5, 0)),  # 3
    Part.LineSegment(Vector(-6.2, 12.5, 0), Vector(-3.2, 12.5, 0)),  # 4
    Part.LineSegment(Vector(-3.2, 12.5, 0), Vector(-3.2, 25.5, 0)),  # 5
    Part.LineSegment(Vector(-3.2, 25.5, 0), Vector(-24.2, 25.5, 0)),  # 6
    Part.LineSegment(Vector(-24.2, 25.5, 0), Vector(-24.2, 12.5, 0)),  # 7
], False)
sketch12.addConstraint([
    Sketcher.Constraint("Coincident", 0, 2, 1, 1),
    Sketcher.Constraint("Coincident", 1, 2, 2, 1),
    Sketcher.Constraint("Coincident", 2, 2, 3, 1),
    Sketcher.Constraint("Coincident", 3, 2, 4, 1),
    Sketcher.Constraint("Coincident", 4, 2, 5, 1),
    Sketcher.Constraint("Coincident", 5, 2, 6, 1),
    Sketcher.Constraint("Coincident", 6, 2, 7, 1),
    Sketcher.Constraint("Coincident", 7, 2, 0, 1),
    Sketcher.Constraint("Horizontal", 0),
    Sketcher.Constraint("Vertical", 1),
    Sketcher.Constraint("Horizontal", 2),
    Sketcher.Constraint("Vertical", 3),
    Sketcher.Constraint("Horizontal", 4),
    Sketcher.Constraint("Vertical", 5),
    Sketcher.Constraint("Horizontal", 6),
    Sketcher.Constraint("Vertical", 7),
    Sketcher.Constraint("Horizontal", 0, 2, 3, 2),
    Sketcher.Constraint("Equal", 0, 4),
    Sketcher.Constraint("DistanceX", 0, 1, 0, 2, 3.0),
    Sketcher.Constraint("DistanceX", 2, 1, 2, 2, 15.0),
    Sketcher.Constraint("DistanceY", 1, 1, 1, 2, 10.0),
    Sketcher.Constraint("DistanceY", 5, 1, 5, 2, 13.0),
    Sketcher.Constraint("DistanceY", -1, 1, 0, 2, 12.5),
    Sketcher.Constraint("DistanceX", 0, 2, -1, 1, 21.25),
])
pad3 = body2.newObject("PartDesign::Pad", "Pad002")
pad3.Profile = sketch12
pad3.Length = 10
pad3.Reversed = True

doc.recompute()
